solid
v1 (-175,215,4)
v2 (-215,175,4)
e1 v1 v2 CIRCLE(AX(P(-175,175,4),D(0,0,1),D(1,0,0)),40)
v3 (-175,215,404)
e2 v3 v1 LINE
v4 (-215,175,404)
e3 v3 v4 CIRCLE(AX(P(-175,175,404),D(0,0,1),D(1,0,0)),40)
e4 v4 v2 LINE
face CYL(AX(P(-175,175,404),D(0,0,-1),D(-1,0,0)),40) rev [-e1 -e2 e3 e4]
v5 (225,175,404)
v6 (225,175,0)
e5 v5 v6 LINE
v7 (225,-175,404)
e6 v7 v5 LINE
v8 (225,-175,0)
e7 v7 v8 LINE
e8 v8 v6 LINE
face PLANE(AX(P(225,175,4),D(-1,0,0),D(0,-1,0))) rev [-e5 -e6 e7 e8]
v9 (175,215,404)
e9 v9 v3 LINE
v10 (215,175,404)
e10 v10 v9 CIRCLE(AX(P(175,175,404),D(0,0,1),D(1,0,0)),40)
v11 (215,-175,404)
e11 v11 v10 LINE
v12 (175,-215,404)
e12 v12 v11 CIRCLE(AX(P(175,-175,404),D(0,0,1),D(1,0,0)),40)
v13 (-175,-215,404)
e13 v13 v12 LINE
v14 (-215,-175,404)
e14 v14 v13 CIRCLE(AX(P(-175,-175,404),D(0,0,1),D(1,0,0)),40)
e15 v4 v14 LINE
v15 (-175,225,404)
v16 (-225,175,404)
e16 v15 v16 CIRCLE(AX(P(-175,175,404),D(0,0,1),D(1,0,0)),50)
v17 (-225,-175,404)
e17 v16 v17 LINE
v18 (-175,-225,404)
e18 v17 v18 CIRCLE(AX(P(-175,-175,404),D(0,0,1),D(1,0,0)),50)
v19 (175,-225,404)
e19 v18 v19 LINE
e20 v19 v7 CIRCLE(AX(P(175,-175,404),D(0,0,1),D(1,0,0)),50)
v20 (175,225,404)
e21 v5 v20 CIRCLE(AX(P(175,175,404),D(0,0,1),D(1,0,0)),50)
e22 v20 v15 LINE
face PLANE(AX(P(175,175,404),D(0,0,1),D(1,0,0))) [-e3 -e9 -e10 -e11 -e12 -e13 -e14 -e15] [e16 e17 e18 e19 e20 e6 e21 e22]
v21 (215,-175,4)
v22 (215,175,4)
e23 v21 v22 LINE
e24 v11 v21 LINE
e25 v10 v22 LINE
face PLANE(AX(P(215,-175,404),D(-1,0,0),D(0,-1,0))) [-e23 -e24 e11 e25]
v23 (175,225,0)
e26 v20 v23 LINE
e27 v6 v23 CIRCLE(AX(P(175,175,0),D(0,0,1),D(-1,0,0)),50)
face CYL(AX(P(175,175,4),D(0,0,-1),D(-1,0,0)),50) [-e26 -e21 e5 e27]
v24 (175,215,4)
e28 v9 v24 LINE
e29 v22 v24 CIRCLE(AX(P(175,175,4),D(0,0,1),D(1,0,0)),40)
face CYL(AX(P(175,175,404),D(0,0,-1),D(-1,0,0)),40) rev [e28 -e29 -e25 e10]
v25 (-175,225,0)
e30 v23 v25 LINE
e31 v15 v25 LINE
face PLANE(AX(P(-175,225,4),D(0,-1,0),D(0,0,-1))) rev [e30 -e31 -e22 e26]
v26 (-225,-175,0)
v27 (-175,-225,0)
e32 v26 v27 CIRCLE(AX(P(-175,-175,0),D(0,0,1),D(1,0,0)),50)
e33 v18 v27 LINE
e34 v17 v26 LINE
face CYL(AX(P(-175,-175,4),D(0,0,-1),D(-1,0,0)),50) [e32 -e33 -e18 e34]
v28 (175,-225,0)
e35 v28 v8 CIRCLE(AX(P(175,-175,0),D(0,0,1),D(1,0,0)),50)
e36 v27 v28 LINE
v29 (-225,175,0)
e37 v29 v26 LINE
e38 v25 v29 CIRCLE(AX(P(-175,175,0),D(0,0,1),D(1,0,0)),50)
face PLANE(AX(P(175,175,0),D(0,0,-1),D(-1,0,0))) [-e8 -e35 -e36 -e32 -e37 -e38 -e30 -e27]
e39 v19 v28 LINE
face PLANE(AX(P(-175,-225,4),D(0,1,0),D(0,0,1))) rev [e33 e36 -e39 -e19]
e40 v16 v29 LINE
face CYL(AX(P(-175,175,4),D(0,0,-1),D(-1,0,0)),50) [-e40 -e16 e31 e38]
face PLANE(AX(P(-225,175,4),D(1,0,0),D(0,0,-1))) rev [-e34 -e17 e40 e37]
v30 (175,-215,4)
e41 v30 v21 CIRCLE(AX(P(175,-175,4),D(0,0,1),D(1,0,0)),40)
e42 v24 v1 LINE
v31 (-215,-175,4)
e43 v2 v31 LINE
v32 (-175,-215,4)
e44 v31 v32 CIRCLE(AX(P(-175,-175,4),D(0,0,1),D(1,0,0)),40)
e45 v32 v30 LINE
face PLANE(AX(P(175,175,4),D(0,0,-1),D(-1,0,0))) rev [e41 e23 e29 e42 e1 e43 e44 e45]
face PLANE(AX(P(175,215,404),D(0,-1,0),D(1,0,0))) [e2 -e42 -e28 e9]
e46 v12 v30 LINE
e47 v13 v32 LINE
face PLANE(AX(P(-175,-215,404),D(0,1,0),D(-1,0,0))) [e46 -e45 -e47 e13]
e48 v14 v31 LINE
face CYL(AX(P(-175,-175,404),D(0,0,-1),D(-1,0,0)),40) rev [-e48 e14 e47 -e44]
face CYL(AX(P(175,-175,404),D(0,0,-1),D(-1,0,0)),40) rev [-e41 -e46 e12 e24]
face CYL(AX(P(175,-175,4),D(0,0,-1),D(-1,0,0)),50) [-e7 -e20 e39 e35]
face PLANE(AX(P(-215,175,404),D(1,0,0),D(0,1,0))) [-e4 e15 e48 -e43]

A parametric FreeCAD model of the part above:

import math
import FreeCAD as App
import Part
import Sketcher

V = App.Vector

doc = App.newDocument("Part")
body = doc.addObject("PartDesign::Body", "Body")

# Sketch on XY plane
sketch1 = body.newObject("Sketcher::SketchObject", "Sketch")
sketch1.AttachmentSupport = (doc.getObject("XY_Plane"), [""])
sketch1.MapMode = "FlatFace"
sketch1.addGeometry([
    Part.LineSegment(V(175, 225, 0), V(-175, 225, 0)),  # 0
    Part.ArcOfCircle(Part.Circle(V(-175, 175, 0), V(0, 0, 1), 50), math.radians(90), math.radians(180)),  # 1
    Part.LineSegment(V(-225, 175, 0), V(-225, -175, 0)),  # 2
    Part.ArcOfCircle(Part.Circle(V(-175, -175, 0), V(0, 0, 1), 50), math.radians(-180), math.radians(-90)),  # 3
    Part.LineSegment(V(-175, -225, 0), V(175, -225, 0)),  # 4
    Part.ArcOfCircle(Part.Circle(V(175, -175, 0), V(0, 0, 1), 50), math.radians(-90), math.radians(0)),  # 5
    Part.LineSegment(V(225, -175, 0), V(225, 175, 0)),  # 6
    Part.ArcOfCircle(Part.Circle(V(175, 175, 0), V(0, 0, 1), 50), math.radians(0), math.radians(90)),  # 7
], False)
sketch1.addConstraint([
    Sketcher.Constraint("Tangent", 0, 2, 1, 1),
    Sketcher.Constraint("Tangent", 1, 2, 2, 1),
    Sketcher.Constraint("Tangent", 2, 2, 3, 1),
    Sketcher.Constraint("Tangent", 3, 2, 4, 1),
    Sketcher.Constraint("Tangent", 4, 2, 5, 1),
    Sketcher.Constraint("Tangent", 5, 2, 6, 1),
    Sketcher.Constraint("Tangent", 6, 2, 7, 1),
    Sketcher.Constraint("Tangent", 7, 2, 0, 1),
    Sketcher.Constraint("Horizontal", 0),
    Sketcher.Constraint("Vertical", 2),
    Sketcher.Constraint("Horizontal", 4),
    Sketcher.Constraint("Vertical", 6),
    Sketcher.Constraint("Equal", 1, 3),
    Sketcher.Constraint("Equal", 3, 5),
    Sketcher.Constraint("Equal", 5, 7),
    Sketcher.Constraint("Symmetric", 1, 3, 5, 3, -1, 1),
    Sketcher.Constraint("Equal", 4, 2),
    Sketcher.Constraint("Radius", 1, 50.0),
    Sketcher.Constraint("DistanceX", 0, 2, 0, 1, 350.0),
])
pad1 = body.newObject("PartDesign::Pad", "Pad")
pad1.Profile = sketch1
pad1.Length = 4

# Sketch on XY plane
sketch2 = body.newObject("Sketcher::SketchObject", "Sketch001")
sketch2.AttachmentSupport = (doc.getObject("XY_Plane"), [""])
sketch2.MapMode = "FlatFace"
sketch2.AttachmentOffset = App.Placement(V(0, 0, 4), App.Rotation())
sketch2.addGeometry([
    Part.LineSegment(V(175, 225, 0), V(-175, 225, 0)),  # 0
    Part.ArcOfCircle(Part.Circle(V(-175, 175, 0), V(0, 0, 1), 50), math.radians(90), math.radians(180)),  # 1
    Part.LineSegment(V(-225, 175, 0), V(-225, -175, 0)),  # 2
    Part.ArcOfCircle(Part.Circle(V(-175, -175, 0), V(0, 0, 1), 50), math.radians(-180), math.radians(-90)),  # 3
    Part.LineSegment(V(-175, -225, 0), V(175, -225, 0)),  # 4
    Part.ArcOfCircle(Part.Circle(V(175, -175, 0), V(0, 0, 1), 50), math.radians(-90), math.radians(0)),  # 5
    Part.LineSegment(V(225, -175, 0), V(225, 175, 0)),  # 6
    Part.ArcOfCircle(Part.Circle(V(175, 175, 0), V(0, 0, 1), 50), math.radians(0), math.radians(90)),  # 7
    Part.LineSegment(V(-215, -175, 0), V(-215, 175, 0)),  # 8
    Part.ArcOfCircle(Part.Circle(V(-175, 175, 0), V(0, 0, 1), 40), math.radians(90), math.radians(180)),  # 9
    Part.LineSegment(V(-175, 215, 0), V(175, 215, 0)),  # 10
    Part.ArcOfCircle(Part.Circle(V(175, 175, 0), V(0, 0, 1), 40), math.radians(0), math.radians(90)),  # 11
    Part.LineSegment(V(215, 175, 0), V(215, -175, 0)),  # 12
    Part.ArcOfCircle(Part.Circle(V(175, -175, 0), V(0, 0, 1), 40), math.radians(-90), math.radians(0)),  # 13
    Part.LineSegment(V(175, -215, 0), V(-175, -215, 0)),  # 14
    Part.ArcOfCircle(Part.Circle(V(-175, -175, 0), V(0, 0, 1), 40), math.radians(-180), math.radians(-90)),  # 15
], False)
sketch2.addConstraint([
    Sketcher.Constraint("Tangent", 0, 2, 1, 1),
    Sketcher.Constraint("Tangent", 1, 2, 2, 1),
    Sketcher.Constraint("Tangent", 2, 2, 3, 1),
    Sketcher.Constraint("Tangent", 3, 2, 4, 1),
    Sketcher.Constraint("Tangent", 4, 2, 5, 1),
    Sketcher.Constraint("Tangent", 5, 2, 6, 1),
    Sketcher.Constraint("Tangent", 6, 2, 7, 1),
    Sketcher.Constraint("Tangent", 7, 2, 0, 1),
    Sketcher.Constraint("Tangent", 8, 2, 9, 2),
    Sketcher.Constraint("Tangent", 9, 1, 10, 1),
    Sketcher.Constraint("Tangent", 10, 2, 11, 2),
    Sketcher.Constraint("Tangent", 11, 1, 12, 1),
    Sketcher.Constraint("Tangent", 12, 2, 13, 2),
    Sketcher.Constraint("Tangent", 13, 1, 14, 1),
    Sketcher.Constraint("Tangent", 14, 2, 15, 2),
    Sketcher.Constraint("Tangent", 15, 1, 8, 1),
    Sketcher.Constraint("Horizontal", 0),
    Sketcher.Constraint("Vertical", 2),
    Sketcher.Constraint("Horizontal", 4),
    Sketcher.Constraint("Vertical", 6),
    Sketcher.Constraint("Vertical", 8),
    Sketcher.Constraint("Horizontal", 10),
    Sketcher.Constraint("Vertical", 12),
    Sketcher.Constraint("Horizontal", 14),
    Sketcher.Constraint("Coincident", 9, 3, 1, 3),
    Sketcher.Constraint("Coincident", 11, 3, 7, 3),
    Sketcher.Constraint("Coincident", 13, 3, 5, 3),
    Sketcher.Constraint("Equal", 1, 3),
    Sketcher.Constraint("Equal", 3, 5),
    Sketcher.Constraint("Equal", 5, 7),
    Sketcher.Constraint("Equal", 13, 15),
    Sketcher.Constraint("Symmetric", 1, 3, 5, 3, -1, 1),
    Sketcher.Constraint("Equal", 14, 2),
    Sketcher.Constraint("Radius", 1, 50.0),
    Sketcher.Constraint("Radius", 9, 40.0),
    Sketcher.Constraint("DistanceX", 0, 2, 0, 1, 350.0),
])
pad2 = body.newObject("PartDesign::Pad", "Pad001")
pad2.Profile = sketch2
pad2.Length = 400

doc.recompute()
